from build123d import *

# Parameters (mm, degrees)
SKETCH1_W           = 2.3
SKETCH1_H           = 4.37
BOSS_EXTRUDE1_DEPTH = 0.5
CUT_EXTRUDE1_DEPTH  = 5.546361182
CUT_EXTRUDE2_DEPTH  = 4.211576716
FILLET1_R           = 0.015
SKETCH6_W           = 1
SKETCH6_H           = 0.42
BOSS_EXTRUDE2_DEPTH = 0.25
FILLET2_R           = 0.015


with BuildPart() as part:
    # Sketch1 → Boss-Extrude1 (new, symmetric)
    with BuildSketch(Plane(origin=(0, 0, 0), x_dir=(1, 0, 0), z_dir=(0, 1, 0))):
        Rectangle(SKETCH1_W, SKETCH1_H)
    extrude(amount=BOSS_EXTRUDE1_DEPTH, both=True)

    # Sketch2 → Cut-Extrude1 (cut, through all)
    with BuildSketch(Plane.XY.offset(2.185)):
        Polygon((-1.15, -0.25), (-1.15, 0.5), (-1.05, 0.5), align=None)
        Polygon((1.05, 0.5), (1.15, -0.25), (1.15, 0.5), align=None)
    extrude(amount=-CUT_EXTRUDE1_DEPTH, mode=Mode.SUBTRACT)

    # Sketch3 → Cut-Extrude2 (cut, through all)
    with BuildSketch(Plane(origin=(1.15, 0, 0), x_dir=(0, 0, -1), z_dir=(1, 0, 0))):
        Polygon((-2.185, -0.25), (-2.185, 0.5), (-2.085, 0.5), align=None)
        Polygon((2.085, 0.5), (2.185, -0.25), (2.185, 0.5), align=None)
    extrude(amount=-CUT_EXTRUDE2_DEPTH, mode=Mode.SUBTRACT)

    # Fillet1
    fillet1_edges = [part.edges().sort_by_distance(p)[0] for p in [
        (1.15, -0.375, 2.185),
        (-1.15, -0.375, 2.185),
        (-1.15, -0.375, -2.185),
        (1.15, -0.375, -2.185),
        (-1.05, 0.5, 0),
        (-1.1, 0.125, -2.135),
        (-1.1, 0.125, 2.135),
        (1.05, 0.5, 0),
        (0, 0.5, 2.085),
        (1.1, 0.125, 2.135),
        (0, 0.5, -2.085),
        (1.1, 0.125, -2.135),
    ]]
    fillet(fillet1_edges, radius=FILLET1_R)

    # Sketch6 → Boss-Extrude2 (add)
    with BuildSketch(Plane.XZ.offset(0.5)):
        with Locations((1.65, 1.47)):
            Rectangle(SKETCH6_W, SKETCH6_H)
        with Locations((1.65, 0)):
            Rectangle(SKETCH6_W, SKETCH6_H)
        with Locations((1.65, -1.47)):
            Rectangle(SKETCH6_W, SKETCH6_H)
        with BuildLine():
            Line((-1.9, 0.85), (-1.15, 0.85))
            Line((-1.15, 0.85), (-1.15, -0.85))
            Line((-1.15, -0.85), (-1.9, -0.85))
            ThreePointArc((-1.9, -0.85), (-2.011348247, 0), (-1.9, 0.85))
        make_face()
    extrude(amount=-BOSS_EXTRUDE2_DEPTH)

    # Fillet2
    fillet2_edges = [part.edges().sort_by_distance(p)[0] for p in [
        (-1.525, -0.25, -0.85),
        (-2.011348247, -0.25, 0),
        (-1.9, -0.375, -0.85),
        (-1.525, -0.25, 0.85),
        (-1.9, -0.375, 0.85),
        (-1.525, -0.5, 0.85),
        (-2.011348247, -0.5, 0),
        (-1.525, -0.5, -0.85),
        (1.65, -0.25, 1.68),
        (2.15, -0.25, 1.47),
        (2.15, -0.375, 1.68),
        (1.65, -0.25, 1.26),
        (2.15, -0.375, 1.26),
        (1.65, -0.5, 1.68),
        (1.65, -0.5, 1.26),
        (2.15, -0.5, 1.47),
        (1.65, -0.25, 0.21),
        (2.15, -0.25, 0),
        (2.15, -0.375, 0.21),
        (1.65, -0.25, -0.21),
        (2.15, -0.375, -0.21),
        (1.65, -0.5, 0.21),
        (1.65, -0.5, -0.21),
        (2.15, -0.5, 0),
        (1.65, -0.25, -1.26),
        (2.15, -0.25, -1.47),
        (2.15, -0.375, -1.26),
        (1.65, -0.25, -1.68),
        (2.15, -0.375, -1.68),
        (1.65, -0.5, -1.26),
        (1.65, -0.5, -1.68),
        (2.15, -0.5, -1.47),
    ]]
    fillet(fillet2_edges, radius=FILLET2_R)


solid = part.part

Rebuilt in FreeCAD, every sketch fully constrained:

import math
import FreeCAD as App
import Part
import Sketcher
Q = App.Units.Quantity


def edges_at(feature, points):
    """Names of the edges that pass closest to the given points."""
    edges = feature.Shape.Edges
    near = lambda p: min(range(len(edges)), key=lambda i: edges[i].distToShape(Part.Vertex(*p))[0])
    return sorted({f"Edge{near(p) + 1}" for p in points})

doc = App.newDocument("Part")
body = doc.addObject("PartDesign::Body", "Body")

# Sketch on XZ plane
sketch1 = body.newObject("Sketcher::SketchObject", "Sketch")
sketch1.AttachmentSupport = (doc.getObject("XZ_Plane"), [""])
sketch1.MapMode = "FlatFace"
sketch1.addGeometry([
    Part.LineSegment(App.Vector(-1.15, -2.185, 0), App.Vector(-1.15, 2.185, 0)),
    Part.LineSegment(App.Vector(-1.15, 2.185, 0), App.Vector(1.15, 2.185, 0)),
    Part.LineSegment(App.Vector(1.15, 2.185, 0), App.Vector(1.15, -2.185, 0)),
    Part.LineSegment(App.Vector(1.15, -2.185, 0), App.Vector(-1.15, -2.185, 0)),
], False)
sketch1.addConstraint([
    Sketcher.Constraint("Coincident", 0, 2, 1, 1),
    Sketcher.Constraint("Coincident", 1, 2, 2, 1),
    Sketcher.Constraint("Coincident", 2, 2, 3, 1),
    Sketcher.Constraint("Coincident", 3, 2, 0, 1),
    Sketcher.Constraint("Vertical", 0),
    Sketcher.Constraint("Horizontal", 1),
    Sketcher.Constraint("Vertical", 2),
    Sketcher.Constraint("Horizontal", 3),
    Sketcher.Constraint("Symmetric", 0, 2, 2, 2, -1, 1),
    Sketcher.Constraint("DistanceX", 1, 1, 1, 2, Q("2.3 mm")),
    Sketcher.Constraint("DistanceY", 0, 1, 0, 2, Q("4.37 mm")),
])
pad1 = body.newObject("PartDesign::Pad", "Pad")
pad1.Profile = sketch1
pad1.Length = 1
pad1.Midplane = True

# Sketch on XY plane
sketch2 = body.newObject("Sketcher::SketchObject", "Sketch001")
sketch2.AttachmentSupport = (doc.getObject("XY_Plane"), [""])
sketch2.MapMode = "FlatFace"
sketch2.AttachmentOffset = App.Placement(App.Vector(0, 0, 2.185), App.Rotation())
sketch2.addGeometry([
    Part.LineSegment(App.Vector(-1.15, 0.5, 0), App.Vector(-1.15, -0.25, 0)),  # 0
    Part.LineSegment(App.Vector(-1.15, -0.25, 0), App.Vector(-1.05, 0.5, 0)),  # 1
    Part.LineSegment(App.Vector(-1.05, 0.5, 0), App.Vector(-1.15, 0.5, 0)),  # 2
    Part.LineSegment(App.Vector(1.05, 0.5, 0), App.Vector(1.15, -0.25, 0)),  # 3
    Part.LineSegment(App.Vector(1.15, -0.25, 0), App.Vector(1.15, 0.5, 0)),  # 4
    Part.LineSegment(App.Vector(1.15, 0.5, 0), App.Vector(1.05, 0.5, 0)),  # 5
], False)
sketch2.addConstraint([
    Sketcher.Constraint("Coincident", 0, 2, 1, 1),
    Sketcher.Constraint("Coincident", 1, 2, 2, 1),
    Sketcher.Constraint("Coincident", 2, 2, 0, 1),
    Sketcher.Constraint("Coincident", 3, 2, 4, 1),
    Sketcher.Constraint("Coincident", 4, 2, 5, 1),
    Sketcher.Constraint("Coincident", 5, 2, 3, 1),
    Sketcher.Constraint("Vertical", 0),
    Sketcher.Constraint("Horizontal", 2),
    Sketcher.Constraint("Vertical", 4),
    Sketcher.Constraint("Horizontal", 5),
    Sketcher.Constraint("Symmetric", 0, 2, 3, 2, -2),
    Sketcher.Constraint("Symmetric", 1, 2, 5, 2, -2),
    Sketcher.Constraint("DistanceX", 2, 2, 2, 1, Q("0.1 mm")),
    Sketcher.Constraint("DistanceY", 0, 2, 0, 1, Q("0.75 mm")),
    Sketcher.Constraint("DistanceY", -1, 1, 1, 2, Q("0.5 mm")),
    Sketcher.Constraint("DistanceX", 0, 2, 3, 2, Q("2.3 mm")),
])
pocket1 = body.newObject("PartDesign::Pocket", "Pocket")
pocket1.Profile = sketch2
pocket1.Type = "ThroughAll"

# Sketch on YZ plane
sketch3 = body.newObject("Sketcher::SketchObject", "Sketch002")
sketch3.AttachmentSupport = (doc.getObject("YZ_Plane"), [""])
sketch3.MapMode = "FlatFace"
sketch3.AttachmentOffset = App.Placement(App.Vector(0, 0, 1.15), App.Rotation())
sketch3.addGeometry([
    Part.LineSegment(App.Vector(0.5, 2.185, 0), App.Vector(-0.25, 2.185, 0)),  # 0
    Part.LineSegment(App.Vector(-0.25, 2.185, 0), App.Vector(0.5, 2.085, 0)),  # 1
    Part.LineSegment(App.Vector(0.5, 2.085, 0), App.Vector(0.5, 2.185, 0)),  # 2
    Part.LineSegment(App.Vector(0.5, -2.085, 0), App.Vector(-0.25, -2.185, 0)),  # 3
    Part.LineSegment(App.Vector(-0.25, -2.185, 0), App.Vector(0.5, -2.185, 0)),  # 4
    Part.LineSegment(App.Vector(0.5, -2.185, 0), App.Vector(0.5, -2.085, 0)),  # 5
], False)
sketch3.addConstraint([
    Sketcher.Constraint("Coincident", 0, 2, 1, 1),
    Sketcher.Constraint("Coincident", 1, 2, 2, 1),
    Sketcher.Constraint("Coincident", 2, 2, 0, 1),
    Sketcher.Constraint("Coincident", 3, 2, 4, 1),
    Sketcher.Constraint("Coincident", 4, 2, 5, 1),
    Sketcher.Constraint("Coincident", 5, 2, 3, 1),
    Sketcher.Constraint("Horizontal", 0),
    Sketcher.Constraint("Vertical", 2),
    Sketcher.Constraint("Horizontal", 4),
    Sketcher.Constraint("Vertical", 5),
    Sketcher.Constraint("Symmetric", 0, 2, 3, 2, -1),
    Sketcher.Constraint("Symmetric", 1, 2, 5, 2, -1),
    Sketcher.Constraint("DistanceY", 2, 1, 2, 2, Q("0.1 mm")),
    Sketcher.Constraint("DistanceX", 0, 2, 0, 1, Q("0.75 mm")),
    Sketcher.Constraint("DistanceX", -1, 1, 1, 2, Q("0.5 mm")),
    Sketcher.Constraint("DistanceY", 3, 2, 1, 2, Q("4.27 mm")),
])
pocket2 = body.newObject("PartDesign::Pocket", "Pocket001")
pocket2.Profile = sketch3
pocket2.Type = "ThroughAll"
doc.recompute()

fillet = body.newObject("PartDesign::Fillet", "Fillet")
fillet.Base = (pocket2, edges_at(pocket2, [
    (1.15, -0.375, 2.185),
    (-1.15, -0.375, 2.185),
    (-1.15, -0.375, -2.185),
    (1.15, -0.375, -2.185),
    (-1.05, 0.5, 0),
    (-1.1, 0.125, -2.135),
    (-1.1, 0.125, 2.135),
    (1.05, 0.5, 0),
    (0, 0.5, 2.085),
    (1.1, 0.125, 2.135),
    (0, 0.5, -2.085),
    (1.1, 0.125, -2.135),
]))
fillet.Radius = 0.015

# Sketch on XZ plane
sketch4 = body.newObject("Sketcher::SketchObject", "Sketch003")
sketch4.AttachmentSupport = (doc.getObject("XZ_Plane"), [""])
sketch4.MapMode = "FlatFace"
sketch4.AttachmentOffset = App.Placement(App.Vector(0, 0, 0.5), App.Rotation())
sketch4.addGeometry([
    Part.LineSegment(App.Vector(1.15, 1.68, 0), App.Vector(1.15, 1.26, 0)),  # 0
    Part.LineSegment(App.Vector(1.15, 1.26, 0), App.Vector(2.15, 1.26, 0)),  # 1
    Part.LineSegment(App.Vector(2.15, 1.26, 0), App.Vector(2.15, 1.68, 0)),  # 2
    Part.LineSegment(App.Vector(2.15, 1.68, 0), App.Vector(1.15, 1.68, 0)),  # 3
    Part.LineSegment(App.Vector(1.15, 0.21, 0), App.Vector(1.15, -0.21, 0)),  # 4
    Part.LineSegment(App.Vector(1.15, -0.21, 0), App.Vector(2.15, -0.21, 0)),  # 5
    Part.LineSegment(App.Vector(2.15, -0.21, 0), App.Vector(2.15, 0.21, 0)),  # 6
    Part.LineSegment(App.Vector(2.15, 0.21, 0), App.Vector(1.15, 0.21, 0)),  # 7
    Part.LineSegment(App.Vector(1.15, -1.26, 0), App.Vector(1.15, -1.68, 0)),  # 8
    Part.LineSegment(App.Vector(1.15, -1.68, 0), App.Vector(2.15, -1.68, 0)),  # 9
    Part.LineSegment(App.Vector(2.15, -1.68, 0), App.Vector(2.15, -1.26, 0)),  # 10
    Part.LineSegment(App.Vector(2.15, -1.26, 0), App.Vector(1.15, -1.26, 0)),  # 11
    Part.LineSegment(App.Vector(-1.15, 0.85, 0), App.Vector(-1.9, 0.85, 0)),  # 12
    Part.ArcOfCircle(Part.Circle(App.Vector(1.288652, 0, 0), App.Vector(0, 0, 1), 3.3), math.radians(165.073735), math.radians(194.926265)),  # 13
    Part.LineSegment(App.Vector(-1.9, -0.85, 0), App.Vector(-1.15, -0.85, 0)),  # 14
    Part.LineSegment(App.Vector(-1.15, -0.85, 0), App.Vector(-1.15, 0.85, 0)),  # 15
], False)
sketch4.addConstraint([
    Sketcher.Constraint("Coincident", 0, 2, 1, 1),
    Sketcher.Constraint("Coincident", 1, 2, 2, 1),
    Sketcher.Constraint("Coincident", 2, 2, 3, 1),
    Sketcher.Constraint("Coincident", 3, 2, 0, 1),
    Sketcher.Constraint("Coincident", 4, 2, 5, 1),
    Sketcher.Constraint("Coincident", 5, 2, 6, 1),
    Sketcher.Constraint("Coincident", 6, 2, 7, 1),
    Sketcher.Constraint("Coincident", 7, 2, 4, 1),
    Sketcher.Constraint("Coincident", 8, 2, 9, 1),
    Sketcher.Constraint("Coincident", 9, 2, 10, 1),
    Sketcher.Constraint("Coincident", 10, 2, 11, 1),
    Sketcher.Constraint("Coincident", 11, 2, 8, 1),
    Sketcher.Constraint("Coincident", 12, 2, 13, 1),
    Sketcher.Constraint("Coincident", 13, 2, 14, 1),
    Sketcher.Constraint("Coincident", 14, 2, 15, 1),
    Sketcher.Constraint("Coincident", 15, 2, 12, 1),
    Sketcher.Constraint("Vertical", 0),
    Sketcher.Constraint("Horizontal", 1),
    Sketcher.Constraint("Vertical", 2),
    Sketcher.Constraint("Horizontal", 3),
    Sketcher.Constraint("Vertical", 4),
    Sketcher.Constraint("Horizontal", 5),
    Sketcher.Constraint("Vertical", 6),
    Sketcher.Constraint("Horizontal", 7),
    Sketcher.Constraint("Vertical", 8),
    Sketcher.Constraint("Horizontal", 9),
    Sketcher.Constraint("Vertical", 10),
    Sketcher.Constraint("Horizontal", 11),
    Sketcher.Constraint("Horizontal", 12),
    Sketcher.Constraint("Horizontal", 14),
    Sketcher.Constraint("Vertical", 15),
    Sketcher.Constraint("Symmetric", 3, 2, 8, 2, -1),
    Sketcher.Constraint("Symmetric", 1, 2, 10, 2, -1),
    Sketcher.Constraint("Symmetric", 12, 2, 13, 2, -1),
    Sketcher.Constraint("Vertical", 3, 2, 4, 2),
    Sketcher.Constraint("Vertical", 2, 2, 5, 2),
    Sketcher.Constraint("Equal", 2, 4),
    Sketcher.Constraint("Radius", 13, Q("3.3 mm")),
    Sketcher.Constraint("DistanceX", 1, 1, 1, 2, Q("1 mm")),
    Sketcher.Constraint("DistanceY", 15, 1, 15, 2, Q("1.7 mm")),
    Sketcher.Constraint("DistanceX", 12, 2, 12, 1, Q("0.75 mm")),
    Sketcher.Constraint("DistanceY", 0, 2, 0, 1, Q("0.42 mm")),
    Sketcher.Constraint("DistanceX", 12, 2, -1, 1, Q("1.9 mm")),
    Sketcher.Constraint("DistanceX", 14, 2, 11, 2, Q("2.3 mm")),
    Sketcher.Constraint("DistanceY", -1, 1, 0, 2, Q("1.26 mm")),
    Sketcher.Constraint("DistanceY", 4, 2, -1, 1, Q("0.21 mm")),
])
pad2 = body.newObject("PartDesign::Pad", "Pad001")
pad2.Profile = sketch4
pad2.Length = 0.25
pad2.Reversed = True
doc.recompute()

fillet2 = body.newObject("PartDesign::Fillet", "Fillet001")
fillet2.Base = (pad2, edges_at(pad2, [
    (-1.525, -0.25, -0.85),
    (-2.011, -0.25, 0),
    (-1.9, -0.375, -0.85),
    (-1.525, -0.25, 0.85),
    (-1.9, -0.375, 0.85),
    (-1.525, -0.5, 0.85),
    (-2.011, -0.5, 0),
    (-1.525, -0.5, -0.85),
    (1.65, -0.25, 1.68),
    (2.15, -0.25, 1.47),
    (2.15, -0.375, 1.68),
    (1.65, -0.25, 1.26),
    (2.15, -0.375, 1.26),
    (1.65, -0.5, 1.68),
    (1.65, -0.5, 1.26),
    (2.15, -0.5, 1.47),
    (1.65, -0.25, 0.21),
    (2.15, -0.25, 0),
    (2.15, -0.375, 0.21),
    (1.65, -0.25, -0.21),
    (2.15, -0.375, -0.21),
    (1.65, -0.5, 0.21),
    (1.65, -0.5, -0.21),
    (2.15, -0.5, 0),
    (1.65, -0.25, -1.26),
    (2.15, -0.25, -1.47),
    (2.15, -0.375, -1.26),
    (1.65, -0.25, -1.68),
    (2.15, -0.375, -1.68),
    (1.65, -0.5, -1.26),
    (1.65, -0.5, -1.68),
    (2.15, -0.5, -1.47),
]))
fillet2.Radius = 0.015

doc.recompute()
